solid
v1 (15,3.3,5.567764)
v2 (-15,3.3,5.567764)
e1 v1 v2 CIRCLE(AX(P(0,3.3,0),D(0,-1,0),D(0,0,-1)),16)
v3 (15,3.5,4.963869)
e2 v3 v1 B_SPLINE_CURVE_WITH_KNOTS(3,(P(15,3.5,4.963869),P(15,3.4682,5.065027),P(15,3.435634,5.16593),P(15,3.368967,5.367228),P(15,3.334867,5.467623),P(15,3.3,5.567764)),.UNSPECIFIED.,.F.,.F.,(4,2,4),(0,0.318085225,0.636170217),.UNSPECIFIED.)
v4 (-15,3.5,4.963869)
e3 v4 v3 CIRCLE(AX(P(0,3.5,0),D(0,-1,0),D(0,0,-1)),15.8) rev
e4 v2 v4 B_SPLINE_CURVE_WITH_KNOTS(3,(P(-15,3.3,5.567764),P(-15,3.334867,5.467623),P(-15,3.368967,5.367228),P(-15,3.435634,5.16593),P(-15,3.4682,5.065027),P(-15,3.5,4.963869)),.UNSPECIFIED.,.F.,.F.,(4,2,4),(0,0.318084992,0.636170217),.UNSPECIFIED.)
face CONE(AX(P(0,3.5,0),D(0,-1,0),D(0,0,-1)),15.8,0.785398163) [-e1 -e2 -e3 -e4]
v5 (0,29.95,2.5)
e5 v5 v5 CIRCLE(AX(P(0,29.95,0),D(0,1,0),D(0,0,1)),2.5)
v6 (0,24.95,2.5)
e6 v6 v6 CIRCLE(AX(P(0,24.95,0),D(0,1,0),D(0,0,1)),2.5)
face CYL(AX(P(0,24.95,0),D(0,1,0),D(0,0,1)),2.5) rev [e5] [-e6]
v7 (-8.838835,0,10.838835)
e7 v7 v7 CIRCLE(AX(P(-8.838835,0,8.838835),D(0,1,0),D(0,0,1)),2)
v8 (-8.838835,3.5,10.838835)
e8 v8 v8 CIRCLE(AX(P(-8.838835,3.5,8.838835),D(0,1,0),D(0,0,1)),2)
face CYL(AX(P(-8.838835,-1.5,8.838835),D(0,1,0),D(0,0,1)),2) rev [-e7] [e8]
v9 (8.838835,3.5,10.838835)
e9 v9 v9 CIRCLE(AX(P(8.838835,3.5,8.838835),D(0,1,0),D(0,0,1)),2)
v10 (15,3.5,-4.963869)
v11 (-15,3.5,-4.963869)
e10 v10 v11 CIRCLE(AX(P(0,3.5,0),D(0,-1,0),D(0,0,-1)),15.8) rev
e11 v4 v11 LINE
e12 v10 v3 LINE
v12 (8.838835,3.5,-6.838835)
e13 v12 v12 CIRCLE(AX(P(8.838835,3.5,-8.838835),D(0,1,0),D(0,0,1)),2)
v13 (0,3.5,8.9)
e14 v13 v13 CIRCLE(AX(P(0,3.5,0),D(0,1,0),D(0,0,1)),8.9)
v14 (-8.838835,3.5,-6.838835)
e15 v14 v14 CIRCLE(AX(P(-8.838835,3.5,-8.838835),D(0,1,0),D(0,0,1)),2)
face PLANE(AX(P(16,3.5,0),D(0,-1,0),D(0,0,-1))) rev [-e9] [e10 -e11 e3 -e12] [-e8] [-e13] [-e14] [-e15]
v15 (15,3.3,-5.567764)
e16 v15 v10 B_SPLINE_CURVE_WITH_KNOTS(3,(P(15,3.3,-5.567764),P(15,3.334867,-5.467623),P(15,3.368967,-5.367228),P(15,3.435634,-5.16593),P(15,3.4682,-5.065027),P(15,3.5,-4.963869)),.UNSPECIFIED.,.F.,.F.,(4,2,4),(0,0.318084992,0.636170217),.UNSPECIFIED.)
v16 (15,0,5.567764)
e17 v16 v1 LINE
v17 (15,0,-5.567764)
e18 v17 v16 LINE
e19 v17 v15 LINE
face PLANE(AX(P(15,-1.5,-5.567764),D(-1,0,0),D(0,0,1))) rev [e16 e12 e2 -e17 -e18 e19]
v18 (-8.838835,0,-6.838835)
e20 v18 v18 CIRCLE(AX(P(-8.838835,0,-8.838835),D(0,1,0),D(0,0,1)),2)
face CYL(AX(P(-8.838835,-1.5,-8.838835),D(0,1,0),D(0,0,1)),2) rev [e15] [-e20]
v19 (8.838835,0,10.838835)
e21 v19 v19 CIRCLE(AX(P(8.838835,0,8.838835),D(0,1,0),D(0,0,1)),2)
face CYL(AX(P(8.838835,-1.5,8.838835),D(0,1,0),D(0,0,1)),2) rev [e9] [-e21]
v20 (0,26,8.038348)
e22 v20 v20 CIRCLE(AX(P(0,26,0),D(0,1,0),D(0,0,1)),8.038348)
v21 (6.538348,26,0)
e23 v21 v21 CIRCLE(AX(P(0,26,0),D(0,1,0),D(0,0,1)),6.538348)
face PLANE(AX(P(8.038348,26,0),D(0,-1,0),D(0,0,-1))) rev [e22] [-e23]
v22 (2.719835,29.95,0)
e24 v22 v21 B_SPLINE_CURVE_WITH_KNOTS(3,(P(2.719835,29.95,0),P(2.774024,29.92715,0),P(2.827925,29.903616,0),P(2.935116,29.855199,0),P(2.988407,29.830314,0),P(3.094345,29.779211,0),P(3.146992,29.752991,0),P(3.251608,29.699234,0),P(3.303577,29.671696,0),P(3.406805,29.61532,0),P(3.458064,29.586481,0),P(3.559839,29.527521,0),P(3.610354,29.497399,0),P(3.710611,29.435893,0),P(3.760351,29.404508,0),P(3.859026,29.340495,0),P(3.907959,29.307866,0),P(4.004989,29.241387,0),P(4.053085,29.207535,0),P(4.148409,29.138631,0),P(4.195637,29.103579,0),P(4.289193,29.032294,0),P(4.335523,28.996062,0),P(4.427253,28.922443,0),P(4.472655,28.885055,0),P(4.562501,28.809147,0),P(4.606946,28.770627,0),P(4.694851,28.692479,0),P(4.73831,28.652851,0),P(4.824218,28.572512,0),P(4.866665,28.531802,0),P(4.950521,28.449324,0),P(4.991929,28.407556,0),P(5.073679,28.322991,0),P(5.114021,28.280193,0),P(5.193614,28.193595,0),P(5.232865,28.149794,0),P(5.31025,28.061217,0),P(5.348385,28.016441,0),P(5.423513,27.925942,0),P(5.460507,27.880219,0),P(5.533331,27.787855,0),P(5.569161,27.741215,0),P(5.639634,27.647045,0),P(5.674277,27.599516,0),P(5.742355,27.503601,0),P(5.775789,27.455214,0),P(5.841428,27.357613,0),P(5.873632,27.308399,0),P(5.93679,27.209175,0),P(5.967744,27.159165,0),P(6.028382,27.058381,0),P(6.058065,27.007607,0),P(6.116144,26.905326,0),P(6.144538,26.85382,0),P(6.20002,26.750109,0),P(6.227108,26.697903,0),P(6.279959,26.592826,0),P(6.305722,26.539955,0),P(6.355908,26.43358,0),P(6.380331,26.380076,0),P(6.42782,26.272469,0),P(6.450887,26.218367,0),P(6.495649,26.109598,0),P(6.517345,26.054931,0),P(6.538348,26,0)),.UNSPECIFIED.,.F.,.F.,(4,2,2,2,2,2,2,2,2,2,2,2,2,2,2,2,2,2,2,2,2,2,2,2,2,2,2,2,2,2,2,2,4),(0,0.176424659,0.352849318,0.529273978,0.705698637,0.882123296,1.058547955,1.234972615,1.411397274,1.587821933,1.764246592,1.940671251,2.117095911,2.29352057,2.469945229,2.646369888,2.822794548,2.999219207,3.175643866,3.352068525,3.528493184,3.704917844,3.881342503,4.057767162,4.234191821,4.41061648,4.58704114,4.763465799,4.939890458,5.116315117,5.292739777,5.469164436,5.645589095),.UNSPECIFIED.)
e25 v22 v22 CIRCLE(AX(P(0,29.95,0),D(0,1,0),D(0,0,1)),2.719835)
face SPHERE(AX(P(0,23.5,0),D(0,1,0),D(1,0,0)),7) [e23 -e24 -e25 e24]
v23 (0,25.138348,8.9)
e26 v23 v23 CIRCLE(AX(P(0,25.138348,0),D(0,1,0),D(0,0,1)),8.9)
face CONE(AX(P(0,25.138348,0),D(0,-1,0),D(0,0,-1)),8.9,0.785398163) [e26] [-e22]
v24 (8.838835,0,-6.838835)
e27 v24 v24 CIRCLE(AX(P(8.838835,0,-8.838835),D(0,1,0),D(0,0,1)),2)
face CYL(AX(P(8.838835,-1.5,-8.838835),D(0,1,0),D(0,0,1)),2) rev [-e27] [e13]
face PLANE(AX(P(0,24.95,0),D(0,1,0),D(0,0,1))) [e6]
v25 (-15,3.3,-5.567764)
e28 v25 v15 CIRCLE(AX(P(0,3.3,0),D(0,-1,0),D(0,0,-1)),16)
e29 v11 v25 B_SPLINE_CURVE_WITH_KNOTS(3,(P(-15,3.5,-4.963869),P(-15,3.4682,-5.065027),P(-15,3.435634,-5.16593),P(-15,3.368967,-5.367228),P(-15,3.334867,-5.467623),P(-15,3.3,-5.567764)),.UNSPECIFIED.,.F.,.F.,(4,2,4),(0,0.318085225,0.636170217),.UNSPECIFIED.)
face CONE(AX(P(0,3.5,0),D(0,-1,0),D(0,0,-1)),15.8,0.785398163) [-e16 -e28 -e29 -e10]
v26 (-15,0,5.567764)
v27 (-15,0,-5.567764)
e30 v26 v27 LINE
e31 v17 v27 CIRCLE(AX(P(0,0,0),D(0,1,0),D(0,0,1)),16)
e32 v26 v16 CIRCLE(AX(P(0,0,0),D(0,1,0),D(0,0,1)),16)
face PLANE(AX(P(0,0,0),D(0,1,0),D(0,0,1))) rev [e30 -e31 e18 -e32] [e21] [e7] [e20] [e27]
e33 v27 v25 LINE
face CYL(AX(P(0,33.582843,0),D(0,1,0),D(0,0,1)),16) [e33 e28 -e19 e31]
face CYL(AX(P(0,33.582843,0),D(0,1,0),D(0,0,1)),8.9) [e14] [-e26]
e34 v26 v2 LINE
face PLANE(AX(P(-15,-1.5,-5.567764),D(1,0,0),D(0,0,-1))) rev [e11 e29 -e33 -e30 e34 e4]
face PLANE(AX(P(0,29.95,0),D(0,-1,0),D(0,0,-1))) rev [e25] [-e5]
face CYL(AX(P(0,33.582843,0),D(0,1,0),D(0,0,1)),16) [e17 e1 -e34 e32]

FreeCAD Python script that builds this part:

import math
import FreeCAD as App
import Part
import Sketcher

V = App.Vector
Q = App.Units.Quantity


def edges_at(feature, points):
    """Names of the edges that pass closest to the given points."""
    edges = feature.Shape.Edges
    near = lambda p: min(range(len(edges)), key=lambda i: edges[i].distToShape(Part.Vertex(*p))[0])
    return sorted({f"Edge{near(p) + 1}" for p in points})

doc = App.newDocument("Part")
params = doc.addObject("Spreadsheet::Sheet", "Params")
for row, (alias, value) in enumerate([
    ("sketch1_radius", "7 mm"),
    ("sketch1_width", "16 mm"),
    ("sketch1_width2", "7.1 mm"),
    ("sketch1_width3", "1.5 mm"),
    ("sketch1_height", "3.5 mm"),
    ("revolution_angle", "360 deg"),
    ("sketch2_diameter", "5 mm"),
    ("pocket1_length", "5 mm"),
    ("sketch3_diameter", "4 mm"),
    ("sketch3_radius", "16 mm"),
    ("pocket2_length", "5 mm"),
    ("chamfer_size", "0.2 mm"),
], start=1):
    params.set(f"A{row}", alias)
    params.set(f"B{row}", "=" + value)
    params.setAlias(f"B{row}", alias)

body = doc.addObject("PartDesign::Body", "Body")

# Sketch on XY plane
sketch1 = body.newObject("Sketcher::SketchObject", "Sketch")
sketch1.AttachmentSupport = (doc.getObject("XY_Plane"), [""])
sketch1.MapMode = "FlatFace"
sketch1.addGeometry(Part.LineSegment(V(0, 0, 0), V(16, 0, 0)), False)
sketch1.addGeometry(Part.LineSegment(V(16, 0, 0), V(16, 3.5, 0)), False)
sketch1.addGeometry(Part.LineSegment(V(16, 3.5, 0), V(8.9, 3.5, 0)), False)
sketch1.addGeometry(Part.LineSegment(V(8.9, 3.5, 0), V(8.9, 25.1, 0)), False)
sketch1.addGeometry(Part.LineSegment(V(8.9, 25.1, 0), V(8, 26, 0)), False)
sketch1.addGeometry(Part.LineSegment(V(8, 26, 0), V(6.5, 26, 0)), False)
sketch1.addGeometry(Part.ArcOfCircle(Part.Circle(V(0, 23.5, 0), V(0, 0, 1), 7), math.radians(21), math.radians(67)), False)
sketch1.addGeometry(Part.LineSegment(V(2.7, 29.9, 0), V(0, 29.9, 0)), False)
sketch1.addGeometry(Part.LineSegment(V(0, 29.9, 0), V(0, 0, 0)), False)
sketch1.addConstraint(Sketcher.Constraint("Coincident", 0, 2, 1, 1))
sketch1.addConstraint(Sketcher.Constraint("Coincident", 1, 2, 2, 1))
sketch1.addConstraint(Sketcher.Constraint("Coincident", 2, 2, 3, 1))
sketch1.addConstraint(Sketcher.Constraint("Coincident", 3, 2, 4, 1))
sketch1.addConstraint(Sketcher.Constraint("Coincident", 4, 2, 5, 1))
sketch1.addConstraint(Sketcher.Constraint("Coincident", 5, 2, 6, 1))
sketch1.addConstraint(Sketcher.Constraint("Coincident", 6, 2, 7, 1))
sketch1.addConstraint(Sketcher.Constraint("Coincident", 7, 2, 8, 1))
sketch1.addConstraint(Sketcher.Constraint("Coincident", 8, 2, 0, 1))
sketch1.addConstraint(Sketcher.Constraint("Horizontal", 0))
sketch1.addConstraint(Sketcher.Constraint("Vertical", 1))
sketch1.addConstraint(Sketcher.Constraint("Horizontal", 2))
sketch1.addConstraint(Sketcher.Constraint("Vertical", 3))
sketch1.addConstraint(Sketcher.Constraint("Horizontal", 5))
sketch1.addConstraint(Sketcher.Constraint("Horizontal", 7))
sketch1.addConstraint(Sketcher.Constraint("Vertical", 8))
sketch1.addConstraint(Sketcher.Constraint("Coincident", 8, 2, -1, 1))
sketch1.addConstraint(Sketcher.Constraint("PointOnObject", 6, 3, -2))
sketch1.addConstraint(Sketcher.Constraint("Radius", 6, 7.0))
sketch1.addConstraint(Sketcher.Constraint("DistanceX", 0, 1, 0, 2, 16.0))
sketch1.addConstraint(Sketcher.Constraint("Angle", 4, Q("135 deg")))
sketch1.addConstraint(Sketcher.Constraint("DistanceX", 2, 2, 2, 1, 7.1))
sketch1.addConstraint(Sketcher.Constraint("DistanceX", 5, 2, 5, 1, 1.5))
sketch1.addConstraint(Sketcher.Constraint("DistanceY", 1, 1, 1, 2, 3.5))
sketch1.addConstraint(Sketcher.Constraint("DistanceY", -1, 1, 4, 2, 26.0))
sketch1.addConstraint(Sketcher.Constraint("DistanceY", 1, 2, 6, 3, 20.0))
sketch1.addConstraint(Sketcher.Constraint("DistanceY", 8, 2, 8, 1, 29.95))
sketch1.setExpression("Constraints[18]", "Params.sketch1_radius")
sketch1.setExpression("Constraints[19]", "Params.sketch1_width")
sketch1.setExpression("Constraints[21]", "Params.sketch1_width2")
sketch1.setExpression("Constraints[22]", "Params.sketch1_width3")
sketch1.setExpression("Constraints[23]", "Params.sketch1_height")
revolution = body.newObject("PartDesign::Revolution", "Revolution")
revolution.Profile = sketch1
revolution.ReferenceAxis = (sketch1, ["V_Axis"])
revolution.setExpression("Angle", "Params.revolution_angle")

# Sketch on XZ plane
sketch2 = body.newObject("Sketcher::SketchObject", "Sketch001")
sketch2.AttachmentSupport = (doc.getObject("XZ_Plane"), [""])
sketch2.MapMode = "FlatFace"
sketch2.AttachmentOffset = App.Placement(V(0, 0, -29.95), App.Rotation())
sketch2.addGeometry(Part.Circle(V(0, 0, 0), V(0, 0, 1), 2.5), False)
sketch2.addConstraint(Sketcher.Constraint("Coincident", 0, 3, -1, 1))
sketch2.addConstraint(Sketcher.Constraint("Diameter", 0, 5.0))
sketch2.setExpression("Constraints[1]", "Params.sketch2_diameter")
pocket1 = body.newObject("PartDesign::Pocket", "Pocket")
pocket1.Profile = sketch2
pocket1.setExpression("Length", "Params.pocket1_length")
pocket1.Reversed = True

# Sketch on XZ plane
sketch3 = body.newObject("Sketcher::SketchObject", "Sketch002")
sketch3.AttachmentSupport = (doc.getObject("XZ_Plane"), [""])
sketch3.MapMode = "FlatFace"
sketch3.AttachmentOffset = App.Placement(V(0, 0, -3.5), App.Rotation())
sketch3.addGeometry(Part.Circle(V(8.8, -8.8, 0), V(0, 0, 1), 2), False)
sketch3.addGeometry(Part.Circle(V(8.8, 8.8, 0), V(0, 0, 1), 2), False)
sketch3.addGeometry(Part.Circle(V(-8.8, 8.8, 0), V(0, 0, 1), 2), False)
sketch3.addGeometry(Part.Circle(V(-8.8, -8.8, 0), V(0, 0, 1), 2), False)
sketch3.addGeometry(Part.LineSegment(V(-15, 5.6, 0), V(-15, -5.6, 0)), False)
sketch3.addGeometry(Part.ArcOfCircle(Part.Circle(V(0, 0, 0), V(0, 0, 1), 16), math.radians(160), math.radians(200)), False)
sketch3.addGeometry(Part.LineSegment(V(15, -5.6, 0), V(15, 5.6, 0)), False)
sketch3.addGeometry(Part.ArcOfCircle(Part.Circle(V(0, 0, 0), V(0, 0, 1), 16), math.radians(-20), math.radians(20)), False)
sketch3.addConstraint(Sketcher.Constraint("Coincident", 4, 1, 5, 1))
sketch3.addConstraint(Sketcher.Constraint("Coincident", 5, 2, 4, 2))
sketch3.addConstraint(Sketcher.Constraint("Coincident", 6, 1, 7, 1))
sketch3.addConstraint(Sketcher.Constraint("Coincident", 7, 2, 6, 2))
sketch3.addConstraint(Sketcher.Constraint("Vertical", 4))
sketch3.addConstraint(Sketcher.Constraint("Vertical", 6))
sketch3.addConstraint(Sketcher.Constraint("Coincident", 5, 3, -1, 1))
sketch3.addConstraint(Sketcher.Constraint("Coincident", 7, 3, -1, 1))
sketch3.addConstraint(Sketcher.Constraint("Equal", 0, 1))
sketch3.addConstraint(Sketcher.Constraint("Equal", 1, 2))
sketch3.addConstraint(Sketcher.Constraint("Equal", 2, 3))
sketch3.addConstraint(Sketcher.Constraint("Equal", 5, 7))
sketch3.addConstraint(Sketcher.Constraint("Symmetric", 0, 3, 2, 3, -1, 1))
sketch3.addConstraint(Sketcher.Constraint("Symmetric", 1, 3, 3, 3, -1, 1))
sketch3.addConstraint(Sketcher.Constraint("Symmetric", 1, 3, 2, 3, -2))
sketch3.addConstraint(Sketcher.Constraint("Horizontal", 5, 2, 6, 1))
sketch3.addConstraint(Sketcher.Constraint("Diameter", 0, 4.0))
sketch3.addConstraint(Sketcher.Constraint("Radius", 5, 16.0))
sketch3.addConstraint(Sketcher.Constraint("DistanceX", 4, 1, -1, 1, 15.0))
sketch3.addConstraint(Sketcher.Constraint("DistanceY", 3, 3, 4, 1, 14.406599))
sketch3.addConstraint(Sketcher.Constraint("DistanceX", 2, 3, 1, 3, 17.67767))
sketch3.setExpression("Constraints[16]", "Params.sketch3_diameter")
sketch3.setExpression("Constraints[17]", "Params.sketch3_radius")
pocket2 = body.newObject("PartDesign::Pocket", "Pocket001")
pocket2.Profile = sketch3
pocket2.setExpression("Length", "Params.pocket2_length")
pocket2.Reversed = True
doc.recompute()

chamfer = body.newObject("PartDesign::Chamfer", "Chamfer")
chamfer.Base = (pocket2, edges_at(pocket2, [(0, 3.5, -16), (0, 3.5, 16)]))
chamfer.setExpression("Size", "Params.chamfer_size")

doc.recompute()
